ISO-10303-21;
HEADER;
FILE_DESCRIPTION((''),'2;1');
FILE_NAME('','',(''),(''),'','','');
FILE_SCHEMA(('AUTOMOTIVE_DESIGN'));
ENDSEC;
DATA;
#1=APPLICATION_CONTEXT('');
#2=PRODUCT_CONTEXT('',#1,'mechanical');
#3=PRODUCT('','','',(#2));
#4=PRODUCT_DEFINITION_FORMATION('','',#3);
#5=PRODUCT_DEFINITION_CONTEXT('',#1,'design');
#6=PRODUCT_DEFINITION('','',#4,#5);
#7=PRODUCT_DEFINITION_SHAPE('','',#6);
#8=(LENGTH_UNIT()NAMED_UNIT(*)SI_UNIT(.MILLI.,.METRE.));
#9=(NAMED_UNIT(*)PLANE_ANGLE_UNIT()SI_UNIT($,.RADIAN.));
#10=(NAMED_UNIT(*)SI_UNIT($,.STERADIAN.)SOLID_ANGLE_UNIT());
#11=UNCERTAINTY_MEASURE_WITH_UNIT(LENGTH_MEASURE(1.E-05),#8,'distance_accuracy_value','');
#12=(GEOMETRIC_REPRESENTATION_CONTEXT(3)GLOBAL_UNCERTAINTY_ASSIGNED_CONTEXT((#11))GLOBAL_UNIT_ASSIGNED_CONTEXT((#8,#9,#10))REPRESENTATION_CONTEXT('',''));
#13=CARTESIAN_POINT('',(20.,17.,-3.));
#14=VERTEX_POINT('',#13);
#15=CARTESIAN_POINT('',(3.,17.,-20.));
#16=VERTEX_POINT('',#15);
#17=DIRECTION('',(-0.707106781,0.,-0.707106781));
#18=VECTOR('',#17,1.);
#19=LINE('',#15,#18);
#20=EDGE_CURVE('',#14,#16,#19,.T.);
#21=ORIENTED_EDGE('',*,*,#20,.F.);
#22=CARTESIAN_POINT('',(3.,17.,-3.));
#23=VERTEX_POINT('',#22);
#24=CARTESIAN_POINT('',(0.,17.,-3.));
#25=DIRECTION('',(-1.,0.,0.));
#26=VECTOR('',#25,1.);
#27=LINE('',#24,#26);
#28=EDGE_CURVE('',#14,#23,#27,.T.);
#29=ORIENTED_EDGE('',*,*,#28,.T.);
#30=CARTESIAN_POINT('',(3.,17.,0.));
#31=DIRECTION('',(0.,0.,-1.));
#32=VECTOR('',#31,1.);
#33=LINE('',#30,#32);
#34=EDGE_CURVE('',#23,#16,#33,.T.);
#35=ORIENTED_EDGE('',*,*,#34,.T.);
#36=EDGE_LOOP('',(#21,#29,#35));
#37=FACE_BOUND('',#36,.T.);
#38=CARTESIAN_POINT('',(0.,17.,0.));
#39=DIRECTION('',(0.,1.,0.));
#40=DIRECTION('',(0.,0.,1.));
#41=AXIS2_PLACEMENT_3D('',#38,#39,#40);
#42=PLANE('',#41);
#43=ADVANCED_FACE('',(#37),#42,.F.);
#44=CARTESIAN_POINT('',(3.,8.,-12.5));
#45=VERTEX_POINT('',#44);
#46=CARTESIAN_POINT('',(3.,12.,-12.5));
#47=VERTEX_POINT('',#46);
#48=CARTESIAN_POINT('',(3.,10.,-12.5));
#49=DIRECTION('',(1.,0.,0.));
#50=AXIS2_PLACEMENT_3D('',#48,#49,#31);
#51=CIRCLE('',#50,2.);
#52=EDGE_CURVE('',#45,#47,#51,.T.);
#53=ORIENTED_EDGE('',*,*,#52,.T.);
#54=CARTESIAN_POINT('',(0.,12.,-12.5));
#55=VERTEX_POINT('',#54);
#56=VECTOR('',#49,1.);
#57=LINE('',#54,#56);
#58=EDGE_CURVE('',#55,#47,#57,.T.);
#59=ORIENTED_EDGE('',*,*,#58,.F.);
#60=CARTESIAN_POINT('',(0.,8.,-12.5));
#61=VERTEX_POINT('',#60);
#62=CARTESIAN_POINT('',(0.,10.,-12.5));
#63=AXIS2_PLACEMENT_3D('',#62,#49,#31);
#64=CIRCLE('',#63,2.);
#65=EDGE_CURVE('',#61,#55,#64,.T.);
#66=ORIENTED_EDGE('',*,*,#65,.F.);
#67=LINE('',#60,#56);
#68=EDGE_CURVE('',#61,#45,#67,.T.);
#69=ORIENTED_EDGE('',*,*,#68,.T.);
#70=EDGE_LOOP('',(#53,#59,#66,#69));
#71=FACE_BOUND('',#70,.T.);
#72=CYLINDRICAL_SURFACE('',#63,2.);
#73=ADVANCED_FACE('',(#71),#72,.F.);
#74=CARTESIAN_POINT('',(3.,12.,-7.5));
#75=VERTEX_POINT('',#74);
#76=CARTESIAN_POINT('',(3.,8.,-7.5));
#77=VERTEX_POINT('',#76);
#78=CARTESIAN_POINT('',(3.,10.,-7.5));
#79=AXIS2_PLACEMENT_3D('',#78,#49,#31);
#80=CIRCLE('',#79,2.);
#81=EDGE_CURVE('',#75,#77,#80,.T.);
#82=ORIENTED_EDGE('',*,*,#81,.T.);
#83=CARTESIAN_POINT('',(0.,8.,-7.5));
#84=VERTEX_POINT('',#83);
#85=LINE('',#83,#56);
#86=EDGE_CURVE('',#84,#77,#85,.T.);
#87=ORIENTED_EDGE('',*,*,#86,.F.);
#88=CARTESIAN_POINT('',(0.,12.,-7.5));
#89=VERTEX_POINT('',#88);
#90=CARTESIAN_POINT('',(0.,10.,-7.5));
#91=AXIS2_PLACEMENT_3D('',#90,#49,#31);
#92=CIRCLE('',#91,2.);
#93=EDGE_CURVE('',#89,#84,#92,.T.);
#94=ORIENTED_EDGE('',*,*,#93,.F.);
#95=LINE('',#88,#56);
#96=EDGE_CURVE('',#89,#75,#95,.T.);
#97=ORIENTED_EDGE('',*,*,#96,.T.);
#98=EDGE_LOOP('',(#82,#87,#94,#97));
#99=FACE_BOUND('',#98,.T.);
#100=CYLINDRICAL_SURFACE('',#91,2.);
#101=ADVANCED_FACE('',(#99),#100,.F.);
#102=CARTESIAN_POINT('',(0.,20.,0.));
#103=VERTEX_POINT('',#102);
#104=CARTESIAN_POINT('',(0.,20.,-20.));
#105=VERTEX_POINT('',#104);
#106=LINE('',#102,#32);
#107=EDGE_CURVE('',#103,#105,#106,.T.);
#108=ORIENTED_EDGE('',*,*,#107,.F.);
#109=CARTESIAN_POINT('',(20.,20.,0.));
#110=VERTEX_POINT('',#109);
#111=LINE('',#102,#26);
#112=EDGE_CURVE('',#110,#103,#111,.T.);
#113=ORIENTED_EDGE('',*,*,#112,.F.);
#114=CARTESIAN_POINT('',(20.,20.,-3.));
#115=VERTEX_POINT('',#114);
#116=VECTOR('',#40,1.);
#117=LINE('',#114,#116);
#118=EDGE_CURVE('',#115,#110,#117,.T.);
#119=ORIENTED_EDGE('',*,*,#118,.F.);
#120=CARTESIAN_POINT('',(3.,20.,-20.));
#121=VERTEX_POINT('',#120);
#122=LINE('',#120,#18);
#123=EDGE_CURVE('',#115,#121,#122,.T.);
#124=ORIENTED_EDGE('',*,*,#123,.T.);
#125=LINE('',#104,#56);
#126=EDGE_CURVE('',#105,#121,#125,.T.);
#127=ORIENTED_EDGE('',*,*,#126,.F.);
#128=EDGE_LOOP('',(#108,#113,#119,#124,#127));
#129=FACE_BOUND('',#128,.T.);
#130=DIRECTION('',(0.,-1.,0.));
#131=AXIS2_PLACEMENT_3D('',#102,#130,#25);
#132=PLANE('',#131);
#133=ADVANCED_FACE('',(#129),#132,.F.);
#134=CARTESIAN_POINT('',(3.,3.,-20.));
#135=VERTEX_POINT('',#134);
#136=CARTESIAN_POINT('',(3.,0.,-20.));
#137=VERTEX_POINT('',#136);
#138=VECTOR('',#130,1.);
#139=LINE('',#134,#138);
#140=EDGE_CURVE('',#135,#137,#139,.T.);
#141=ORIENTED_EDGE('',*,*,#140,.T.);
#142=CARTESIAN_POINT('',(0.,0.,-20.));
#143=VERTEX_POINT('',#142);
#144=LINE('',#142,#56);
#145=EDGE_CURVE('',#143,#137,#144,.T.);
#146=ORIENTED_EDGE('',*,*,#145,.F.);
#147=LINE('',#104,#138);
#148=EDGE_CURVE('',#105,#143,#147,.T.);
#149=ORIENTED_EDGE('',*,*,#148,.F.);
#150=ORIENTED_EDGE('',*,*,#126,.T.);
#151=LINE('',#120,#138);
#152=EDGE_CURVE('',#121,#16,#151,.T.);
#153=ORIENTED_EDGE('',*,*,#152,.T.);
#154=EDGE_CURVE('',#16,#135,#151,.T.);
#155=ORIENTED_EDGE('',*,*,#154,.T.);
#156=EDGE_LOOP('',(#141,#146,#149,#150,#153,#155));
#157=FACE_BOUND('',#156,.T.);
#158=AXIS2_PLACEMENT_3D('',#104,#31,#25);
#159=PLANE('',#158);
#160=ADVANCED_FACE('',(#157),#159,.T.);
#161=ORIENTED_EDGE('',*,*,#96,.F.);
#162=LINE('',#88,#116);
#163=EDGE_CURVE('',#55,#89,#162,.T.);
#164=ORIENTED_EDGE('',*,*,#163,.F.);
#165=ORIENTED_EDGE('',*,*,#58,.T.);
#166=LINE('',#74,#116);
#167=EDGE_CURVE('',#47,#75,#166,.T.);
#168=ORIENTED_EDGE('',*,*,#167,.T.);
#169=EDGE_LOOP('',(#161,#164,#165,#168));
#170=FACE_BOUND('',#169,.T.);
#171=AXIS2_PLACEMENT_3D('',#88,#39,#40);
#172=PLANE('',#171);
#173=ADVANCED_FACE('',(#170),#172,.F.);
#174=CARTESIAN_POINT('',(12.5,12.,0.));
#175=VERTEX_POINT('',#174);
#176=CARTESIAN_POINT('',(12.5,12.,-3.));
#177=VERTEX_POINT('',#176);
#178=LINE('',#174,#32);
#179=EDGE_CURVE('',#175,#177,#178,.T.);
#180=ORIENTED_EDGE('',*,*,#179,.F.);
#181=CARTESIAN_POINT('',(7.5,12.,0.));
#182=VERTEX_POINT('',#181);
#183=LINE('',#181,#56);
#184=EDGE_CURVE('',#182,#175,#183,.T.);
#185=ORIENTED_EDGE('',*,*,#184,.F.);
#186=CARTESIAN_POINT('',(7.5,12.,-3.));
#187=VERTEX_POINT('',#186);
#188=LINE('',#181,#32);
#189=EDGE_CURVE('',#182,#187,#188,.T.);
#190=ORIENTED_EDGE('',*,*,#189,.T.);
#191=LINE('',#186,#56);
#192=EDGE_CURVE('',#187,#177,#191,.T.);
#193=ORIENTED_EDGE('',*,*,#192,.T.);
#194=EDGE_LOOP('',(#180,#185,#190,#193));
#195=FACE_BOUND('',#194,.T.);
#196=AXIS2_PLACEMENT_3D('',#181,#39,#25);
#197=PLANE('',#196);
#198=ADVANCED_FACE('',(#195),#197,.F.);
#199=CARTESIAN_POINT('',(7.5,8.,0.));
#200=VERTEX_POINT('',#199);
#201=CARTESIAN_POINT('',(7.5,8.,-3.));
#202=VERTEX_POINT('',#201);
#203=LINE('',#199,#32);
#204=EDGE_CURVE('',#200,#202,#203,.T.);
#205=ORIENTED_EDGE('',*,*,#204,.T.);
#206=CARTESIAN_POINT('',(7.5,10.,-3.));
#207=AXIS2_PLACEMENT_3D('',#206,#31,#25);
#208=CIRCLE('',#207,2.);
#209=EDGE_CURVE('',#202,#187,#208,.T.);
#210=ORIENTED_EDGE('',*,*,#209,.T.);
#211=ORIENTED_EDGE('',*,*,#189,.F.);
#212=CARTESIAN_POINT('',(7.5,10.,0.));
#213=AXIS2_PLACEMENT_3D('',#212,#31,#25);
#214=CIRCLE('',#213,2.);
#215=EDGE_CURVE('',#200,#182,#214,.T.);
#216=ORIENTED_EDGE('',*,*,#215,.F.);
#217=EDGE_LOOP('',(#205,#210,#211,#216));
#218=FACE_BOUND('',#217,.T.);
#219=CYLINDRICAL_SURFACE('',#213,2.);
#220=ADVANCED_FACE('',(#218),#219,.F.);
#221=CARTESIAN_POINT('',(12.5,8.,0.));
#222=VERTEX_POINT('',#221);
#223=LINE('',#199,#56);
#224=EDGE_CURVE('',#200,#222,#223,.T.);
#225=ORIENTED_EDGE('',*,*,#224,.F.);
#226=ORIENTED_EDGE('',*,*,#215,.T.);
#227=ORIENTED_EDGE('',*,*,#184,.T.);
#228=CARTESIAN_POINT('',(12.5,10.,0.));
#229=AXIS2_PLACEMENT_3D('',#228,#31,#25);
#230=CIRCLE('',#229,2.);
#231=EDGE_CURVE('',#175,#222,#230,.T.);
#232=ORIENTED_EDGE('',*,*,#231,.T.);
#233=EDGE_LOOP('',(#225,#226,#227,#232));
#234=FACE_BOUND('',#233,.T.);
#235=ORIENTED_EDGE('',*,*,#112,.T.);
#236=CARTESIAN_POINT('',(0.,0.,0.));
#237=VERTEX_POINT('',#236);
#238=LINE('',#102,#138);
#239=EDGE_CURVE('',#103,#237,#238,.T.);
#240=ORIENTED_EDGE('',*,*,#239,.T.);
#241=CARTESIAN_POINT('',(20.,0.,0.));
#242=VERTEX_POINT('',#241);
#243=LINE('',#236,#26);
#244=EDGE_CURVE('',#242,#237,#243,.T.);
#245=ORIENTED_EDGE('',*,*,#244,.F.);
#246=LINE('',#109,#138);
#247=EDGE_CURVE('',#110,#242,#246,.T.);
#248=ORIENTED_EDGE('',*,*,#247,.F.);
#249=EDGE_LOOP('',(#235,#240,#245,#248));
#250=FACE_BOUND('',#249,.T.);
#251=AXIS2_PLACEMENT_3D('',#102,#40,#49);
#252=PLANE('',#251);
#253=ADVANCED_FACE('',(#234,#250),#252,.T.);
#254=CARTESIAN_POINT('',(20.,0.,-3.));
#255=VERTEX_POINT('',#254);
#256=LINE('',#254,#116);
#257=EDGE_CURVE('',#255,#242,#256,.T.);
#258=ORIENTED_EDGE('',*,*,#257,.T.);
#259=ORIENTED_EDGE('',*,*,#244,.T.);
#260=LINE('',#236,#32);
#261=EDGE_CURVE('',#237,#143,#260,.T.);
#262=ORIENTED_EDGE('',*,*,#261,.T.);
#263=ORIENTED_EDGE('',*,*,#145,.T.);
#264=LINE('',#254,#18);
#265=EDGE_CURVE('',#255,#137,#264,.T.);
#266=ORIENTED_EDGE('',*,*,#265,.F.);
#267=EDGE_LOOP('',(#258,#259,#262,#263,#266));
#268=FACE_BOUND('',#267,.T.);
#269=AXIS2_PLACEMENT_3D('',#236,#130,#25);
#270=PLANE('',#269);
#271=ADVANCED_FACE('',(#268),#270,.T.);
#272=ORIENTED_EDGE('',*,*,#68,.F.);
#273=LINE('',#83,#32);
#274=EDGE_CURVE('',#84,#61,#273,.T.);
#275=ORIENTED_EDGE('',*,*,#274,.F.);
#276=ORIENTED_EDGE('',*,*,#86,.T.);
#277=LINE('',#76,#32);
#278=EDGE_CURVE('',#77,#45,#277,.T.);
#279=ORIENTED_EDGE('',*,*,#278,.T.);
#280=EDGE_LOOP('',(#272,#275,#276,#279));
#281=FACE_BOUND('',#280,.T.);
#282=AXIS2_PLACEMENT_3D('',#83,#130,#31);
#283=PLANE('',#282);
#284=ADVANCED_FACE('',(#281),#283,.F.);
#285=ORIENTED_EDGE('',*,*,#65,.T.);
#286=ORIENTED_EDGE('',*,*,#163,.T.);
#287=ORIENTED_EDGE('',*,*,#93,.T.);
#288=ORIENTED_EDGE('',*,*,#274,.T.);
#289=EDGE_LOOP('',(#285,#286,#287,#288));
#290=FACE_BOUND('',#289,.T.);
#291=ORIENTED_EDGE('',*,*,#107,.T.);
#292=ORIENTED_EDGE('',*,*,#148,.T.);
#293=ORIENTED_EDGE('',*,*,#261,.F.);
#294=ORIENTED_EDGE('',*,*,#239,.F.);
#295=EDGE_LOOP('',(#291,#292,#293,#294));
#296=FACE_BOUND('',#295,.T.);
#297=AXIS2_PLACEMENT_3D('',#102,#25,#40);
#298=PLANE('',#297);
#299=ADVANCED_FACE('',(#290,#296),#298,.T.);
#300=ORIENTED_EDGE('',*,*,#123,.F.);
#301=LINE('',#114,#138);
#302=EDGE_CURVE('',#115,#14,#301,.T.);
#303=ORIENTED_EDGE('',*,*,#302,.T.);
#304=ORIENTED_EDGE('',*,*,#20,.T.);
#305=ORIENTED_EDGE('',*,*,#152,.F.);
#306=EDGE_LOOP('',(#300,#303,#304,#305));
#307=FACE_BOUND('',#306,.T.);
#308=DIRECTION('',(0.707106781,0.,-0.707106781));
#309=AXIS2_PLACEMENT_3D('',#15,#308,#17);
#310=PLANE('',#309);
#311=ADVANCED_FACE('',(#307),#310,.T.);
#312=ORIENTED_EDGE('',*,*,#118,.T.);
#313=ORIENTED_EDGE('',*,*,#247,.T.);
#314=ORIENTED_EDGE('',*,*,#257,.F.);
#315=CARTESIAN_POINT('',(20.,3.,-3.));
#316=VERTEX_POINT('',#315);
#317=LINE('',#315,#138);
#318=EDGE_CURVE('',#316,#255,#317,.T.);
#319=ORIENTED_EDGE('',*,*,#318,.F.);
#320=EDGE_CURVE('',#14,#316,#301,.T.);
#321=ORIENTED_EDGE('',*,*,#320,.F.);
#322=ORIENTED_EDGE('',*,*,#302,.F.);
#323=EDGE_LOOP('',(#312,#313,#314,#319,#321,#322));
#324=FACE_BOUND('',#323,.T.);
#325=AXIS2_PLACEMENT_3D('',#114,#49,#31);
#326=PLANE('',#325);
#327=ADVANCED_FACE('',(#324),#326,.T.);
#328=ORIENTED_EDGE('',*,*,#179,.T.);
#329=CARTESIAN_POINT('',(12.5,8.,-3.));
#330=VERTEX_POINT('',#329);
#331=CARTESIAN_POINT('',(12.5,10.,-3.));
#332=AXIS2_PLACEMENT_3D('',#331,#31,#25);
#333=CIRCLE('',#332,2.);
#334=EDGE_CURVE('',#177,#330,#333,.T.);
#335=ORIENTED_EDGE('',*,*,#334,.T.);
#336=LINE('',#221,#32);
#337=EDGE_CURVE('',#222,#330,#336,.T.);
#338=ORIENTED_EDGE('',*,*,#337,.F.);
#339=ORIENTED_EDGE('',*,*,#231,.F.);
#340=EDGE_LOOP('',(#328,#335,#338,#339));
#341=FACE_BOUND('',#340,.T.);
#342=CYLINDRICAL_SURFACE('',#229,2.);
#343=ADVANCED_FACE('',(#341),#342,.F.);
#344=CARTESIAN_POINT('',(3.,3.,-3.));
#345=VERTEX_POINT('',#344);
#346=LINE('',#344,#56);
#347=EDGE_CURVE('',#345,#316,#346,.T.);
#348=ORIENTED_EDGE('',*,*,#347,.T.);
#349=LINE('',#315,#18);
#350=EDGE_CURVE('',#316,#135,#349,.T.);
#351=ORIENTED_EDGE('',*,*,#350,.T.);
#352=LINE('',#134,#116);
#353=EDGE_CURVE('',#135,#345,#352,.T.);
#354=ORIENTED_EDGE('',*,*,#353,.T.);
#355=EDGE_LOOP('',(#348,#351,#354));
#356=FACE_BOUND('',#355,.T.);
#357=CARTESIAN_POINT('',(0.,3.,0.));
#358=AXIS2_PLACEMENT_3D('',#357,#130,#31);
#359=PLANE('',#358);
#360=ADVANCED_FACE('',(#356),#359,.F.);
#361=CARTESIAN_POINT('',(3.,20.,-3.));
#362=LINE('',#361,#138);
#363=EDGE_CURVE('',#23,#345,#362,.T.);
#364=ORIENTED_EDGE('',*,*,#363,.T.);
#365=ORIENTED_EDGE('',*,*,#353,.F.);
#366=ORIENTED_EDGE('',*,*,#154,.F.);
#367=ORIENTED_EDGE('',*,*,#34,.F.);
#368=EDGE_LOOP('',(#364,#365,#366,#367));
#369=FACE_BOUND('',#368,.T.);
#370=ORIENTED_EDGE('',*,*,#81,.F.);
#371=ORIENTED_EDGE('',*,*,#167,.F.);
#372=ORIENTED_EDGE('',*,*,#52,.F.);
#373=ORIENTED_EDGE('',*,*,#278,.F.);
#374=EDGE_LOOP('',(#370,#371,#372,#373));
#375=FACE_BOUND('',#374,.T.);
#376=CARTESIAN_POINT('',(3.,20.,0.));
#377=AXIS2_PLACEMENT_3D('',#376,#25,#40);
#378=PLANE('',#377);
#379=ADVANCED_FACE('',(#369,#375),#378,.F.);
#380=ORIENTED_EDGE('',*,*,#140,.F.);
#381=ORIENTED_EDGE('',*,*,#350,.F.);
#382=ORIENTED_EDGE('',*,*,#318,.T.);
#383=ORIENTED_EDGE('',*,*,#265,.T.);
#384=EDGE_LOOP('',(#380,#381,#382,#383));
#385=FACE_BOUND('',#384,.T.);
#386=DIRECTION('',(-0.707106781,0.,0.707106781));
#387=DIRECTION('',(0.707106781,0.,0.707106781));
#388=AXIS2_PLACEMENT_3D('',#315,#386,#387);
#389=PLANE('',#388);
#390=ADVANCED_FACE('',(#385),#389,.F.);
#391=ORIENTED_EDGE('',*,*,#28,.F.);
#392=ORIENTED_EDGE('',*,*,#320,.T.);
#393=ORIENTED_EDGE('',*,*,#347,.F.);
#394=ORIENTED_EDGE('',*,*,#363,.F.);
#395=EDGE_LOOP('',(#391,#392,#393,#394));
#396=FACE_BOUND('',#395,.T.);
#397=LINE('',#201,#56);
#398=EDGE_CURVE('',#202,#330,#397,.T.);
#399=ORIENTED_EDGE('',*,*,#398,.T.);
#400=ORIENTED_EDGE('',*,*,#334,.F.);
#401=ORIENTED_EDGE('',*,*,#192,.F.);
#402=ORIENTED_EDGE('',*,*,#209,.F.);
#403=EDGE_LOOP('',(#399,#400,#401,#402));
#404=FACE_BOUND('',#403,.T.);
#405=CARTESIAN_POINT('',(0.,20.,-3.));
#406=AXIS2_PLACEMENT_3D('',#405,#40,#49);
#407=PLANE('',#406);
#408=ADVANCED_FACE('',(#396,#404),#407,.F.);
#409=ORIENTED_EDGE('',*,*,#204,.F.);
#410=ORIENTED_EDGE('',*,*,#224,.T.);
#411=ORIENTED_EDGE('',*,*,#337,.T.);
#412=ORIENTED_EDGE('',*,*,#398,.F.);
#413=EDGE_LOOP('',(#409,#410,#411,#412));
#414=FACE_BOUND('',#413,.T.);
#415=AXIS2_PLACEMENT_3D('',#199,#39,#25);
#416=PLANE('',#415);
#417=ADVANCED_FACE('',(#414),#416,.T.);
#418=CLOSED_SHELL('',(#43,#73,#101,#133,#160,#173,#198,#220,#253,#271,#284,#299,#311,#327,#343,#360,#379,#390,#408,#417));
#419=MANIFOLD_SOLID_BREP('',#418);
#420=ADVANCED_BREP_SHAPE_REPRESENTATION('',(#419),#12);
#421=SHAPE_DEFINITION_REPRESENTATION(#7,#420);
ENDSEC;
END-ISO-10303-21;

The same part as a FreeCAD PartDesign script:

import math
import FreeCAD as App
import Part
import Sketcher

V = App.Vector
Q = App.Units.Quantity

doc = App.newDocument("Part")
params = doc.addObject("Spreadsheet::Sheet", "Params")
for row, (alias, value) in enumerate([
    ("sketch1_width", "20 mm"),
    ("sketch1_width2", "17 mm"),
    ("pad1_length", "20 mm"),
    ("sketch2_width", "3 mm"),
    ("sketch2_width2", "20 mm"),
    ("pad2_length", "3 mm"),
    ("sketch3_width", "17 mm"),
    ("pad3_length", "3 mm"),
    ("sketch4_radius", "2 mm"),
    ("sketch4_width", "5 mm"),
    ("sketch5_radius", "2 mm"),
    ("sketch5_height", "5 mm"),
], start=1):
    params.set(f"A{row}", alias)
    params.set(f"B{row}", "=" + value)
    params.setAlias(f"B{row}", alias)

body = doc.addObject("PartDesign::Body", "Body")

sketch1 = body.newObject("Sketcher::SketchObject", "Sketch")
sketch1.AttachmentSupport = (doc.getObject("XZ_Plane"), [""])
sketch1.MapMode = "FlatFace"
sketch1.addGeometry([
    Part.LineSegment(V(0, -20, 0), V(0, 0, 0)),
    Part.LineSegment(V(0, 0, 0), V(20, 0, 0)),
    Part.LineSegment(V(20, 0, 0), V(20, -3, 0)),
    Part.LineSegment(V(20, -3, 0), V(3, -3, 0)),
    Part.LineSegment(V(3, -3, 0), V(3, -20, 0)),
    Part.LineSegment(V(3, -20, 0), V(0, -20, 0)),
], False)
sketch1.addConstraint([
    Sketcher.Constraint("Coincident", 0, 2, 1, 1),
    Sketcher.Constraint("Coincident", 1, 2, 2, 1),
    Sketcher.Constraint("Coincident", 2, 2, 3, 1),
    Sketcher.Constraint("Coincident", 3, 2, 4, 1),
    Sketcher.Constraint("Coincident", 4, 2, 5, 1),
    Sketcher.Constraint("Coincident", 5, 2, 0, 1),
    Sketcher.Constraint("Vertical", 0),
    Sketcher.Constraint("Horizontal", 1),
    Sketcher.Constraint("Vertical", 2),
    Sketcher.Constraint("Horizontal", 3),
    Sketcher.Constraint("Vertical", 4),
    Sketcher.Constraint("Horizontal", 5),
    Sketcher.Constraint("Coincident", 0, 2, -1, 1),
    Sketcher.Constraint("Equal", 1, 0),
    Sketcher.Constraint("Equal", 5, 2),
    Sketcher.Constraint("DistanceX", 1, 1, 1, 2, Q("20 mm")),
    Sketcher.Constraint("DistanceX", 3, 2, 3, 1, Q("17 mm")),
])
sketch1.setExpression("Constraints[15]", "Params.sketch1_width")
sketch1.setExpression("Constraints[16]", "Params.sketch1_width2")
pad1 = body.newObject("PartDesign::Pad", "Pad")
pad1.Profile = sketch1
pad1.setExpression("Length", "Params.pad1_length")
pad1.Reversed = True

sketch2 = body.newObject("Sketcher::SketchObject", "Sketch001")
sketch2.AttachmentSupport = (doc.getObject("XZ_Plane"), [""])
sketch2.MapMode = "FlatFace"
sketch2.AttachmentOffset = App.Placement(V(0, 0, -20), App.Rotation())
sketch2.addGeometry([
    Part.LineSegment(V(20, -3, 0), V(3, -20, 0)),
    Part.LineSegment(V(3, -20, 0), V(0, -20, 0)),
    Part.LineSegment(V(0, -20, 0), V(0, 0, 0)),
    Part.LineSegment(V(0, 0, 0), V(20, 0, 0)),
    Part.LineSegment(V(20, 0, 0), V(20, -3, 0)),
], False)
sketch2.addConstraint([
    Sketcher.Constraint("Coincident", 0, 2, 1, 1),
    Sketcher.Constraint("Coincident", 1, 2, 2, 1),
    Sketcher.Constraint("Coincident", 2, 2, 3, 1),
    Sketcher.Constraint("Coincident", 3, 2, 4, 1),
    Sketcher.Constraint("Coincident", 4, 2, 0, 1),
    Sketcher.Constraint("Horizontal", 1),
    Sketcher.Constraint("Vertical", 2),
    Sketcher.Constraint("Horizontal", 3),
    Sketcher.Constraint("Vertical", 4),
    Sketcher.Constraint("Coincident", 2, 2, -1, 1),
    Sketcher.Constraint("Equal", 3, 2),
    Sketcher.Constraint("Equal", 1, 4),
    Sketcher.Constraint("DistanceX", 1, 2, 1, 1, Q("3 mm")),
    Sketcher.Constraint("DistanceX", 3, 1, 3, 2, Q("20 mm")),
])
sketch2.setExpression("Constraints[12]", "Params.sketch2_width")
sketch2.setExpression("Constraints[13]", "Params.sketch2_width2")
pad2 = body.newObject("PartDesign::Pad", "Pad001")
pad2.Profile = sketch2
pad2.setExpression("Length", "Params.pad2_length")

sketch3 = body.newObject("Sketcher::SketchObject", "Sketch002")
sketch3.AttachmentSupport = (doc.getObject("XZ_Plane"), [""])
sketch3.MapMode = "FlatFace"
sketch3.addGeometry([
    Part.LineSegment(V(3, -20, 0), V(20, -3, 0)),
    Part.LineSegment(V(20, -3, 0), V(3, -3, 0)),
    Part.LineSegment(V(3, -3, 0), V(3, -20, 0)),
], False)
sketch3.addConstraint([
    Sketcher.Constraint("Coincident", 0, 2, 1, 1),
    Sketcher.Constraint("Coincident", 1, 2, 2, 1),
    Sketcher.Constraint("Coincident", 2, 2, 0, 1),
    Sketcher.Constraint("Horizontal", 1),
    Sketcher.Constraint("Vertical", 2),
    Sketcher.Constraint("Equal", 1, 2),
    Sketcher.Constraint("DistanceX", 1, 2, 1, 1, Q("17 mm")),
    Sketcher.Constraint("DistanceX", -1, 1, 0, 2, Q("20 mm")),
    Sketcher.Constraint("DistanceY", 0, 2, -1, 1, Q("3 mm")),
])
sketch3.setExpression("Constraints[6]", "Params.sketch3_width")
pad3 = body.newObject("PartDesign::Pad", "Pad002")
pad3.Profile = sketch3
pad3.setExpression("Length", "Params.pad3_length")
pad3.Reversed = True

sketch4 = body.newObject("Sketcher::SketchObject", "Sketch003")
sketch4.AttachmentSupport = (doc.getObject("XY_Plane"), [""])
sketch4.MapMode = "FlatFace"
sketch4.AttachmentOffset = App.Placement(V(0, 0, -3), App.Rotation())
sketch4.addGeometry([
    Part.LineSegment(V(12.5, 8, 0), V(7.5, 8, 0)),
    Part.ArcOfCircle(Part.Circle(V(7.5, 10, 0), V(0, 0, 1), 2), math.radians(90), math.radians(270)),
    Part.LineSegment(V(7.5, 12, 0), V(12.5, 12, 0)),
    Part.ArcOfCircle(Part.Circle(V(12.5, 10, 0), V(0, 0, 1), 2), math.radians(-90), math.radians(90)),
], False)
sketch4.addConstraint([
    Sketcher.Constraint("Tangent", 0, 2, 1, 2),
    Sketcher.Constraint("Tangent", 1, 1, 2, 1),
    Sketcher.Constraint("Tangent", 2, 2, 3, 2),
    Sketcher.Constraint("Tangent", 3, 1, 0, 1),
    Sketcher.Constraint("Horizontal", 0),
    Sketcher.Constraint("Horizontal", 2),
    Sketcher.Constraint("Radius", 1, Q("2 mm")),
    Sketcher.Constraint("DistanceX", 0, 2, 0, 1, Q("5 mm")),
    Sketcher.Constraint("DistanceY", -1, 1, 1, 3, Q("10 mm")),
    Sketcher.Constraint("DistanceX", -1, 1, 1, 3, Q("7.5 mm")),
])
sketch4.setExpression("Constraints[6]", "Params.sketch4_radius")
sketch4.setExpression("Constraints[7]", "Params.sketch4_width")
pocket1 = body.newObject("PartDesign::Pocket", "Pocket")
pocket1.Profile = sketch4
pocket1.Type = "ThroughAll"
pocket1.Reversed = True

sketch5 = body.newObject("Sketcher::SketchObject", "Sketch004")
sketch5.AttachmentSupport = (doc.getObject("YZ_Plane"), [""])
sketch5.MapMode = "FlatFace"
sketch5.AttachmentOffset = App.Placement(V(0, 0, 3), App.Rotation())
sketch5.addGeometry([
    Part.LineSegment(V(12, -12.5, 0), V(12, -7.5, 0)),
    Part.ArcOfCircle(Part.Circle(V(10, -7.5, 0), V(0, 0, 1), 2), math.radians(0), math.radians(180)),
    Part.LineSegment(V(8, -7.5, 0), V(8, -12.5, 0)),
    Part.ArcOfCircle(Part.Circle(V(10, -12.5, 0), V(0, 0, 1), 2), math.radians(180), math.radians(360)),
], False)
sketch5.addConstraint([
    Sketcher.Constraint("Tangent", 0, 2, 1, 1),
    Sketcher.Constraint("Tangent", 1, 2, 2, 1),
    Sketcher.Constraint("Tangent", 2, 2, 3, 1),
    Sketcher.Constraint("Tangent", 3, 2, 0, 1),
    Sketcher.Constraint("Vertical", 0),
    Sketcher.Constraint("Vertical", 2),
    Sketcher.Constraint("Radius", 1, Q("2 mm")),
    Sketcher.Constraint("DistanceY", 0, 1, 0, 2, Q("5 mm")),
    Sketcher.Constraint("DistanceX", -1, 1, 1, 3, Q("10 mm")),
    Sketcher.Constraint("DistanceY", 1, 3, -1, 1, Q("7.5 mm")),
])
sketch5.setExpression("Constraints[6]", "Params.sketch5_radius")
sketch5.setExpression("Constraints[7]", "Params.sketch5_height")
pocket2 = body.newObject("PartDesign::Pocket", "Pocket001")
pocket2.Profile = sketch5
pocket2.Type = "ThroughAll"

doc.recompute()
